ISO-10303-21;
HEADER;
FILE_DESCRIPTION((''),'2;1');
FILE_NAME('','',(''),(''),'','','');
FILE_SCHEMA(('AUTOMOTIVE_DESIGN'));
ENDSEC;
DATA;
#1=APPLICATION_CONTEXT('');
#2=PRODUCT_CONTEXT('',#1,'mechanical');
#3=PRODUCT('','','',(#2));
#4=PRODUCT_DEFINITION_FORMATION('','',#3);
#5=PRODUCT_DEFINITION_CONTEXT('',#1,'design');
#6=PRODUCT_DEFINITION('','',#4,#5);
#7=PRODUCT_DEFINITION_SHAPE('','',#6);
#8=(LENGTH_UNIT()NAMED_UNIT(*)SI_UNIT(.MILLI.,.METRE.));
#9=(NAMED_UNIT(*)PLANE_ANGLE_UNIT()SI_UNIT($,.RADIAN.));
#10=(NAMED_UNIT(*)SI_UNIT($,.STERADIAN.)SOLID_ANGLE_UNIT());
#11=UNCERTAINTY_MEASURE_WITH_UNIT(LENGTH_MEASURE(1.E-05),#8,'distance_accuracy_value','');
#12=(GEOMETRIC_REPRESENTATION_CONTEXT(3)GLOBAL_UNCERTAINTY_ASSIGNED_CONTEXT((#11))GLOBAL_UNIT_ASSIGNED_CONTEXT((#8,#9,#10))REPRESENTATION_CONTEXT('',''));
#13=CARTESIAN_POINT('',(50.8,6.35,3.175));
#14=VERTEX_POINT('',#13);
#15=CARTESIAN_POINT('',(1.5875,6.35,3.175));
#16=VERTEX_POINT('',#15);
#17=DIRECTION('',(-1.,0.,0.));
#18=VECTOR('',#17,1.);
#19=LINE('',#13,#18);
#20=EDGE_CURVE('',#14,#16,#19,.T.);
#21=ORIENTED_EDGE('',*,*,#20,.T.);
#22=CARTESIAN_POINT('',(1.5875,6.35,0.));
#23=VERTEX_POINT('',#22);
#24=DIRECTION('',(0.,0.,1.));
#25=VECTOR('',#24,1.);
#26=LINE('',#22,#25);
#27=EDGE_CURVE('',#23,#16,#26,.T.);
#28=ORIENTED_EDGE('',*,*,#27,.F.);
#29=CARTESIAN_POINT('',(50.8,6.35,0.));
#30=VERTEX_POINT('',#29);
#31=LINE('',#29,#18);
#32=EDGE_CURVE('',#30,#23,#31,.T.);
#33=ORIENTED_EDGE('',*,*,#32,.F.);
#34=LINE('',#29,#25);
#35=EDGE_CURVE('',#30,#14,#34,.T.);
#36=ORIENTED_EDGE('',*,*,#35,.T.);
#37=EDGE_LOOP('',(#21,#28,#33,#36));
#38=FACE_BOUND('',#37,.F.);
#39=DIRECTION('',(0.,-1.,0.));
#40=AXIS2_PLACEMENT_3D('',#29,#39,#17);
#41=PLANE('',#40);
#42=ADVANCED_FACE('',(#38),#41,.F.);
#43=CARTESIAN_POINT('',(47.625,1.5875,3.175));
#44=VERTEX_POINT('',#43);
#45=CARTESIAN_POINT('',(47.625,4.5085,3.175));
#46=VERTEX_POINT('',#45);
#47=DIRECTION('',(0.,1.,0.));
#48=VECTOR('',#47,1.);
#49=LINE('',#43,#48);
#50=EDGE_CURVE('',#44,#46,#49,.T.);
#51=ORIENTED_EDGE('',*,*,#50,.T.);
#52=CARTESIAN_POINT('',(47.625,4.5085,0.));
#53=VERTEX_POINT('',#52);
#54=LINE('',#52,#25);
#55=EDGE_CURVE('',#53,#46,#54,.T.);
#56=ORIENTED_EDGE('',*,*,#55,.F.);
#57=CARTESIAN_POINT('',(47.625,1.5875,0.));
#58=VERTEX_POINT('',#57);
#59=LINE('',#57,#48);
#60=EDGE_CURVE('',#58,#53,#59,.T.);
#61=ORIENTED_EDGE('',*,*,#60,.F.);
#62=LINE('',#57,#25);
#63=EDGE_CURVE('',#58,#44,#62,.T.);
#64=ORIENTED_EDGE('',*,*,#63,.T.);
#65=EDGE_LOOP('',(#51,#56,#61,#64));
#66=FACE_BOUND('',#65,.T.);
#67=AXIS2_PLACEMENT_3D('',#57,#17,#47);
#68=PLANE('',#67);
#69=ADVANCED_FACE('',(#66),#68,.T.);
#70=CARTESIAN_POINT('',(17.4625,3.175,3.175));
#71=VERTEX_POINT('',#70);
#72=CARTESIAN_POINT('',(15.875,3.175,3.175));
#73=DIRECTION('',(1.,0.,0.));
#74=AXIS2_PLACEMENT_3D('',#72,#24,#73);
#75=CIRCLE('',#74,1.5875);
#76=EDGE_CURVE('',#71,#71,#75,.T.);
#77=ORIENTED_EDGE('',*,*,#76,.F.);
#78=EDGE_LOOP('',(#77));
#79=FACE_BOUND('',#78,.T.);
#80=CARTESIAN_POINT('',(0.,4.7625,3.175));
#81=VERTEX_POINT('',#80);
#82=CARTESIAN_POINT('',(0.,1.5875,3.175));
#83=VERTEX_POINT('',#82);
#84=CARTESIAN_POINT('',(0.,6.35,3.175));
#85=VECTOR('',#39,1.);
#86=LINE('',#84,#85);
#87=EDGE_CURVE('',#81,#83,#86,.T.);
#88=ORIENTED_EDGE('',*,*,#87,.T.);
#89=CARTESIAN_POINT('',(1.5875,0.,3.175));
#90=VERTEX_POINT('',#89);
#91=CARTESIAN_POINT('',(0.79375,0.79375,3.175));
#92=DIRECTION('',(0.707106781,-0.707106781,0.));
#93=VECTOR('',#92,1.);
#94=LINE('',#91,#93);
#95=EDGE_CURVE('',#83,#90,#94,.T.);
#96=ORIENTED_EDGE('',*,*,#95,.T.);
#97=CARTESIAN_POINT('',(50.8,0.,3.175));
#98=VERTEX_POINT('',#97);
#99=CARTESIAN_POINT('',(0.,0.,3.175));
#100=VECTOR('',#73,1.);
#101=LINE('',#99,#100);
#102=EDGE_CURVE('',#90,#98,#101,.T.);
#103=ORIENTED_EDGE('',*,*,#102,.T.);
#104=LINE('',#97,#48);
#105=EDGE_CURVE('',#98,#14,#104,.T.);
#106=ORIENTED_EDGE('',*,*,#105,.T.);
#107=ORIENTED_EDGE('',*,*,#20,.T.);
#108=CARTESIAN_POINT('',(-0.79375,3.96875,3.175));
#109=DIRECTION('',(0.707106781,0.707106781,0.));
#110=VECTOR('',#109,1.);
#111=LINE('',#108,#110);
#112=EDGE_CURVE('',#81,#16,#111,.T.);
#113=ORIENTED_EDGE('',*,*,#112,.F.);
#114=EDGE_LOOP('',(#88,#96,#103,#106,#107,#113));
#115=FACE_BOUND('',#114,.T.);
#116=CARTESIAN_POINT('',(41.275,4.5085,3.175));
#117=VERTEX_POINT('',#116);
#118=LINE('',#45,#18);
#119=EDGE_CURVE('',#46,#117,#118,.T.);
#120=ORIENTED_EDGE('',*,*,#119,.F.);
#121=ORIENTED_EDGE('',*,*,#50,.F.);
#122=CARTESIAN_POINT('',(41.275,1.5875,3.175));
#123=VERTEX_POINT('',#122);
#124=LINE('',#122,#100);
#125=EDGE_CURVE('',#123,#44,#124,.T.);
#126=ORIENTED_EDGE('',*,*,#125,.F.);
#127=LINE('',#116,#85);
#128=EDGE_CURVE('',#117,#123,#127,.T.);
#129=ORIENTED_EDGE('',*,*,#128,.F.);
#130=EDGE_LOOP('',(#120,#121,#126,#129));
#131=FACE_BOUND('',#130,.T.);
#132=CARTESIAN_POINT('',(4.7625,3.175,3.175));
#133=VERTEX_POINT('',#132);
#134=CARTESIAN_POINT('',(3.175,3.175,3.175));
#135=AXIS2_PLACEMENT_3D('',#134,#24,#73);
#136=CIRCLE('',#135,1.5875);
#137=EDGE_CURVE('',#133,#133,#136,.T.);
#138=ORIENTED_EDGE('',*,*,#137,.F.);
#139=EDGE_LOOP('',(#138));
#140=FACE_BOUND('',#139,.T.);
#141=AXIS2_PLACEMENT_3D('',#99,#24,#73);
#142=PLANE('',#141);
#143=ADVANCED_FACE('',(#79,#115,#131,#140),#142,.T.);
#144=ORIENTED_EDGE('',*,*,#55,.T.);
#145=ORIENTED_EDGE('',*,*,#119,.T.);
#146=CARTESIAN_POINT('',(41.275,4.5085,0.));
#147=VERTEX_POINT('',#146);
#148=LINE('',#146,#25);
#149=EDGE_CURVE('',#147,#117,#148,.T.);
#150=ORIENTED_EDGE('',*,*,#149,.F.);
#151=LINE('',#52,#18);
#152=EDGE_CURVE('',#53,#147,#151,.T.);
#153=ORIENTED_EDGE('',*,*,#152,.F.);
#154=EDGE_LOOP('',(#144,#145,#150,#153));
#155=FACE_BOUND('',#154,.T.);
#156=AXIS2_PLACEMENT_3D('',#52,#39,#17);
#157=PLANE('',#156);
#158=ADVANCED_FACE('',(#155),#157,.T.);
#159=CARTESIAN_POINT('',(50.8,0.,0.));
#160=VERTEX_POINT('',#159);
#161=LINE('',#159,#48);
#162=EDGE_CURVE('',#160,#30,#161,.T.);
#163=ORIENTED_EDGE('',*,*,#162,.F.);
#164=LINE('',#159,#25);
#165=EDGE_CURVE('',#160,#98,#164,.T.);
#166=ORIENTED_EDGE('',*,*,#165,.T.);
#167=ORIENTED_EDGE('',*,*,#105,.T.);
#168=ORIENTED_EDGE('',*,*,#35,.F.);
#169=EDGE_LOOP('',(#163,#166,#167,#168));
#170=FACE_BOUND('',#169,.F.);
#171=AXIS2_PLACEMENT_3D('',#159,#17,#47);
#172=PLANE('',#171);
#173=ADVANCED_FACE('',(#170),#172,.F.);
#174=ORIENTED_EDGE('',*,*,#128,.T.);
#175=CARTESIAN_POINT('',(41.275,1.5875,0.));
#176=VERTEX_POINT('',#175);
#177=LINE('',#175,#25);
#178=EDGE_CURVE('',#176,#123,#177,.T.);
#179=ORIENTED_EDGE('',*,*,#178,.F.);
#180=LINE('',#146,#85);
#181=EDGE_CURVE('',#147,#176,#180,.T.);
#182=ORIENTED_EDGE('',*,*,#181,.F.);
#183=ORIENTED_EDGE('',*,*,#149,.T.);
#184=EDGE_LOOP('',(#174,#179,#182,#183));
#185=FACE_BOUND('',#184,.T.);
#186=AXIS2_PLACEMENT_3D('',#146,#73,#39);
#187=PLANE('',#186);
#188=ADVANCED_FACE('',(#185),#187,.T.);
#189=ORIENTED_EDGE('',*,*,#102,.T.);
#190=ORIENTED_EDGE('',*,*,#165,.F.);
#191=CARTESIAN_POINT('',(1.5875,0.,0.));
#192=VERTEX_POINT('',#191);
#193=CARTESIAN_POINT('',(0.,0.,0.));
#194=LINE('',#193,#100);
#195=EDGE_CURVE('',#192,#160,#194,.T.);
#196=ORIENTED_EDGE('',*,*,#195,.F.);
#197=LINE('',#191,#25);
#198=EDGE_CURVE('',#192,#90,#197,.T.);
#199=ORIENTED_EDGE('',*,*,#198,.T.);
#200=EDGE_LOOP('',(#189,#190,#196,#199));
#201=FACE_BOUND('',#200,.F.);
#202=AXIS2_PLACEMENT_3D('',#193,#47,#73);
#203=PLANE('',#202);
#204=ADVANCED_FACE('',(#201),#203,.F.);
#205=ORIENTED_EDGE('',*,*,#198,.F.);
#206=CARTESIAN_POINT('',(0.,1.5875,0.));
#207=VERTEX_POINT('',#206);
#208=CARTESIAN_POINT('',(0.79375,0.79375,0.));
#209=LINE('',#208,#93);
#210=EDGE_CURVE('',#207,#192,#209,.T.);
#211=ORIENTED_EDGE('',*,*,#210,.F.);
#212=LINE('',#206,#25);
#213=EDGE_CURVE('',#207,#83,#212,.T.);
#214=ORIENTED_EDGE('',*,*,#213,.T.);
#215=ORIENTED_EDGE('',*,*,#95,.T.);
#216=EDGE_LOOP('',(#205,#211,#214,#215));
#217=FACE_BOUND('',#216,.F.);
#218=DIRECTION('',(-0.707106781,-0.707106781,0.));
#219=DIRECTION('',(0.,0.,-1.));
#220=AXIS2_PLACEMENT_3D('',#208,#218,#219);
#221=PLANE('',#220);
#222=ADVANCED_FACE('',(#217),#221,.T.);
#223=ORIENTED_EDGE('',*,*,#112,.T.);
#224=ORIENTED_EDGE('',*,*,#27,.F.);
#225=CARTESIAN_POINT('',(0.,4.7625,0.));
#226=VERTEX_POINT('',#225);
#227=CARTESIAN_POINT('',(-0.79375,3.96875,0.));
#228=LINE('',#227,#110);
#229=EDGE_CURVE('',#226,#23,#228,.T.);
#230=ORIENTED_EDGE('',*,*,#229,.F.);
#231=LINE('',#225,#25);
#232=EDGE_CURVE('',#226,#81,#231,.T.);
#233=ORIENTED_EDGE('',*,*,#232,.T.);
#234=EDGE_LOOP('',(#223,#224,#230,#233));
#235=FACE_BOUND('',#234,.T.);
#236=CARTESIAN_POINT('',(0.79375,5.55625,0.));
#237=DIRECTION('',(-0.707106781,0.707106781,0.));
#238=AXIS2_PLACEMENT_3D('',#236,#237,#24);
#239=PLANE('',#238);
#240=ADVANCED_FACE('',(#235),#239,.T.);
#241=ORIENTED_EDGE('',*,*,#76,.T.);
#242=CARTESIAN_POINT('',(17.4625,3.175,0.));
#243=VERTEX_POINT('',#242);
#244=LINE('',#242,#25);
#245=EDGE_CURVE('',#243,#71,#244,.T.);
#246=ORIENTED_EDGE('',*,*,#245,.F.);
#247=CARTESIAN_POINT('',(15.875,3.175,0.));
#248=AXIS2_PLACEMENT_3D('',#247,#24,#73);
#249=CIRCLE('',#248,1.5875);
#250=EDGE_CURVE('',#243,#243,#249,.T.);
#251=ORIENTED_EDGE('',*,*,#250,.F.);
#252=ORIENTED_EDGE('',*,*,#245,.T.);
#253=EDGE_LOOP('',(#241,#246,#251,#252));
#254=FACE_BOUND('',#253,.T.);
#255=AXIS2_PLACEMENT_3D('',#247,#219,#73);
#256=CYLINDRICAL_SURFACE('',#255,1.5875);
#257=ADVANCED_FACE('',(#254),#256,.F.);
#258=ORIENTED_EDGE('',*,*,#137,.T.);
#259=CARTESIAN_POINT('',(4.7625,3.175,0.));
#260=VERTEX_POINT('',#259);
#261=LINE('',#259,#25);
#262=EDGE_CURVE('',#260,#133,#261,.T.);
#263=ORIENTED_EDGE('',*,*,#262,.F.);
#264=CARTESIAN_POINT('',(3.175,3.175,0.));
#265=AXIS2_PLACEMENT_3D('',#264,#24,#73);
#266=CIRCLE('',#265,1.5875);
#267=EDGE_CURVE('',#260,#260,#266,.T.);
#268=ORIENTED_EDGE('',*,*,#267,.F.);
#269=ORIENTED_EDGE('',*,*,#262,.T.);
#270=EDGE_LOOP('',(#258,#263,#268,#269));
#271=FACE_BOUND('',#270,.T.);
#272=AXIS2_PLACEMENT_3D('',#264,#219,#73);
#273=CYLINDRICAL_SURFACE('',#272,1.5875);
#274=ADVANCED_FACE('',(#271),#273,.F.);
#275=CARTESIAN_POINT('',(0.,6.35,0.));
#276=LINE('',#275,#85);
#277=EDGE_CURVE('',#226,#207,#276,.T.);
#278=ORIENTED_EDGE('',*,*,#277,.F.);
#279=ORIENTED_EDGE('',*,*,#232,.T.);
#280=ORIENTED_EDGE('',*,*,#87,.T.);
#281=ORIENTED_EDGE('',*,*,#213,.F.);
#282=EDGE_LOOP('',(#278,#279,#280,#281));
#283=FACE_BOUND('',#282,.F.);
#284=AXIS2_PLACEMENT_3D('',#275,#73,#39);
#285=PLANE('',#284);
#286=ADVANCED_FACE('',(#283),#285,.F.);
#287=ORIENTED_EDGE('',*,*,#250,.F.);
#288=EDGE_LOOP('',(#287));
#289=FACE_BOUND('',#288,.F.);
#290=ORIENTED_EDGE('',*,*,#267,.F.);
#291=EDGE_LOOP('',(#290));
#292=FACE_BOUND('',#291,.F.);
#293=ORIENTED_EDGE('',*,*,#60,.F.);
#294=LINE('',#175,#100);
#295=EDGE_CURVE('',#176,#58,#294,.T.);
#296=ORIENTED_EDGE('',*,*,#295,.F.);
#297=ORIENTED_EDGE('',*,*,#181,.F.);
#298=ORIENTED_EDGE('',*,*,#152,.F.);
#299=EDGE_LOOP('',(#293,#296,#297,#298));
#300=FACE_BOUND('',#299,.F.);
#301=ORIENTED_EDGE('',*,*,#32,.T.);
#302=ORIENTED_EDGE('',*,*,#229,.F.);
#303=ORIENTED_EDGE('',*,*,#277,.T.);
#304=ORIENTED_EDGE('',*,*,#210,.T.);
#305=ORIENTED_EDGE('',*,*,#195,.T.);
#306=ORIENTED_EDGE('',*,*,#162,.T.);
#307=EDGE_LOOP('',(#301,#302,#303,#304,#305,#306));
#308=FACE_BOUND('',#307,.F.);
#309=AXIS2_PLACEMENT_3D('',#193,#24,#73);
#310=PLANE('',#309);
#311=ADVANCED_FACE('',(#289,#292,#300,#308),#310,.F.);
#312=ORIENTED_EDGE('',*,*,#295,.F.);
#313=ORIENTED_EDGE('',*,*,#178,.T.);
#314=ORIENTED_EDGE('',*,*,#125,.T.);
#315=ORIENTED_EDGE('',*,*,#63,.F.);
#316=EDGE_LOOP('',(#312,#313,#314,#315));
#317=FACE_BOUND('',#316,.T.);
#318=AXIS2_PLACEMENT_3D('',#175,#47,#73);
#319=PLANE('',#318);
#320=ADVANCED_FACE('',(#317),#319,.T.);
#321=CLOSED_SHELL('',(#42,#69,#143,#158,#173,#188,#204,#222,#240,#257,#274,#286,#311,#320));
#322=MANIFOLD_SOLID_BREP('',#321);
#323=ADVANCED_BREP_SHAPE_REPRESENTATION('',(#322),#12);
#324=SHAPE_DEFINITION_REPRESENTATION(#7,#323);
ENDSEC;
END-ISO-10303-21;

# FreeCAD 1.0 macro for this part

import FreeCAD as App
import Part
import Sketcher

V = App.Vector
Q = App.Units.Quantity


def edges_at(feature, points):
    """Names of the edges that pass closest to the given points."""
    edges = feature.Shape.Edges
    near = lambda p: min(range(len(edges)), key=lambda i: edges[i].distToShape(Part.Vertex(*p))[0])
    return sorted({f"Edge{near(p) + 1}" for p in points})

doc = App.newDocument("Part")
body = doc.addObject("PartDesign::Body", "Body")

# Sketch on XY plane
sketch1 = body.newObject("Sketcher::SketchObject", "Sketch")
sketch1.AttachmentSupport = (doc.getObject("XY_Plane"), [""])
sketch1.MapMode = "FlatFace"
sketch1.addGeometry([
    Part.LineSegment(V(0, 6.35, 0), V(0, 0, 0)),  # 0
    Part.LineSegment(V(0, 0, 0), V(50.8, 0, 0)),  # 1
    Part.LineSegment(V(50.8, 0, 0), V(50.8, 6.35, 0)),  # 2
    Part.LineSegment(V(50.8, 6.35, 0), V(0, 6.35, 0)),  # 3
    Part.Circle(V(3.175, 3.175, 0), V(0, 0, 1), 1.5875),  # 4
    Part.Circle(V(15.875, 3.175, 0), V(0, 0, 1), 1.5875),  # 5
    Part.LineSegment(V(47.625, 1.5875, 0), V(41.275, 1.5875, 0)),  # 6
    Part.LineSegment(V(41.275, 1.5875, 0), V(41.275, 4.5085, 0)),  # 7
    Part.LineSegment(V(41.275, 4.5085, 0), V(47.625, 4.5085, 0)),  # 8
    Part.LineSegment(V(47.625, 4.5085, 0), V(47.625, 1.5875, 0)),  # 9
], False)
sketch1.addConstraint([
    Sketcher.Constraint("Coincident", 0, 2, 1, 1),
    Sketcher.Constraint("Coincident", 1, 2, 2, 1),
    Sketcher.Constraint("Coincident", 2, 2, 3, 1),
    Sketcher.Constraint("Coincident", 3, 2, 0, 1),
    Sketcher.Constraint("Coincident", 6, 2, 7, 1),
    Sketcher.Constraint("Coincident", 7, 2, 8, 1),
    Sketcher.Constraint("Coincident", 8, 2, 9, 1),
    Sketcher.Constraint("Coincident", 9, 2, 6, 1),
    Sketcher.Constraint("Vertical", 0),
    Sketcher.Constraint("Horizontal", 1),
    Sketcher.Constraint("Vertical", 2),
    Sketcher.Constraint("Horizontal", 3),
    Sketcher.Constraint("Horizontal", 6),
    Sketcher.Constraint("Vertical", 7),
    Sketcher.Constraint("Horizontal", 8),
    Sketcher.Constraint("Vertical", 9),
    Sketcher.Constraint("Coincident", 0, 2, -1, 1),
    Sketcher.Constraint("Equal", 4, 5),
    Sketcher.Constraint("Horizontal", 4, 3, 5, 3),
    Sketcher.Constraint("Equal", 8, 0),
    Sketcher.Constraint("DistanceX", 1, 1, 1, 2, Q("2 in")),
    Sketcher.Constraint("Diameter", 4, Q("0.125 in")),
    Sketcher.Constraint("DistanceX", 6, 2, 6, 1, Q("0.25 in")),
    Sketcher.Constraint("DistanceX", 4, 3, 5, 3, Q("0.5 in")),
    Sketcher.Constraint("DistanceY", 7, 1, 7, 2, Q("0.115 in")),
    Sketcher.Constraint("DistanceX", -1, 1, 4, 3, Q("0.125 in")),
    Sketcher.Constraint("DistanceY", -1, 1, 4, 3, Q("0.125 in")),
    Sketcher.Constraint("DistanceY", -1, 1, 6, 2, Q("0.0625 in")),
    Sketcher.Constraint("DistanceX", 5, 3, 6, 2, Q("1 in")),
])
pad1 = body.newObject("PartDesign::Pad", "Pad")
pad1.Profile = sketch1
pad1.Length = Q("0.125 in")
doc.recompute()

chamfer = body.newObject("PartDesign::Chamfer", "Chamfer")
chamfer.Base = (pad1, edges_at(pad1, [(0, 6.35, 1.587), (0, 0, 1.587)]))
chamfer.Size = Q("0.0625 in")

doc.recompute()
